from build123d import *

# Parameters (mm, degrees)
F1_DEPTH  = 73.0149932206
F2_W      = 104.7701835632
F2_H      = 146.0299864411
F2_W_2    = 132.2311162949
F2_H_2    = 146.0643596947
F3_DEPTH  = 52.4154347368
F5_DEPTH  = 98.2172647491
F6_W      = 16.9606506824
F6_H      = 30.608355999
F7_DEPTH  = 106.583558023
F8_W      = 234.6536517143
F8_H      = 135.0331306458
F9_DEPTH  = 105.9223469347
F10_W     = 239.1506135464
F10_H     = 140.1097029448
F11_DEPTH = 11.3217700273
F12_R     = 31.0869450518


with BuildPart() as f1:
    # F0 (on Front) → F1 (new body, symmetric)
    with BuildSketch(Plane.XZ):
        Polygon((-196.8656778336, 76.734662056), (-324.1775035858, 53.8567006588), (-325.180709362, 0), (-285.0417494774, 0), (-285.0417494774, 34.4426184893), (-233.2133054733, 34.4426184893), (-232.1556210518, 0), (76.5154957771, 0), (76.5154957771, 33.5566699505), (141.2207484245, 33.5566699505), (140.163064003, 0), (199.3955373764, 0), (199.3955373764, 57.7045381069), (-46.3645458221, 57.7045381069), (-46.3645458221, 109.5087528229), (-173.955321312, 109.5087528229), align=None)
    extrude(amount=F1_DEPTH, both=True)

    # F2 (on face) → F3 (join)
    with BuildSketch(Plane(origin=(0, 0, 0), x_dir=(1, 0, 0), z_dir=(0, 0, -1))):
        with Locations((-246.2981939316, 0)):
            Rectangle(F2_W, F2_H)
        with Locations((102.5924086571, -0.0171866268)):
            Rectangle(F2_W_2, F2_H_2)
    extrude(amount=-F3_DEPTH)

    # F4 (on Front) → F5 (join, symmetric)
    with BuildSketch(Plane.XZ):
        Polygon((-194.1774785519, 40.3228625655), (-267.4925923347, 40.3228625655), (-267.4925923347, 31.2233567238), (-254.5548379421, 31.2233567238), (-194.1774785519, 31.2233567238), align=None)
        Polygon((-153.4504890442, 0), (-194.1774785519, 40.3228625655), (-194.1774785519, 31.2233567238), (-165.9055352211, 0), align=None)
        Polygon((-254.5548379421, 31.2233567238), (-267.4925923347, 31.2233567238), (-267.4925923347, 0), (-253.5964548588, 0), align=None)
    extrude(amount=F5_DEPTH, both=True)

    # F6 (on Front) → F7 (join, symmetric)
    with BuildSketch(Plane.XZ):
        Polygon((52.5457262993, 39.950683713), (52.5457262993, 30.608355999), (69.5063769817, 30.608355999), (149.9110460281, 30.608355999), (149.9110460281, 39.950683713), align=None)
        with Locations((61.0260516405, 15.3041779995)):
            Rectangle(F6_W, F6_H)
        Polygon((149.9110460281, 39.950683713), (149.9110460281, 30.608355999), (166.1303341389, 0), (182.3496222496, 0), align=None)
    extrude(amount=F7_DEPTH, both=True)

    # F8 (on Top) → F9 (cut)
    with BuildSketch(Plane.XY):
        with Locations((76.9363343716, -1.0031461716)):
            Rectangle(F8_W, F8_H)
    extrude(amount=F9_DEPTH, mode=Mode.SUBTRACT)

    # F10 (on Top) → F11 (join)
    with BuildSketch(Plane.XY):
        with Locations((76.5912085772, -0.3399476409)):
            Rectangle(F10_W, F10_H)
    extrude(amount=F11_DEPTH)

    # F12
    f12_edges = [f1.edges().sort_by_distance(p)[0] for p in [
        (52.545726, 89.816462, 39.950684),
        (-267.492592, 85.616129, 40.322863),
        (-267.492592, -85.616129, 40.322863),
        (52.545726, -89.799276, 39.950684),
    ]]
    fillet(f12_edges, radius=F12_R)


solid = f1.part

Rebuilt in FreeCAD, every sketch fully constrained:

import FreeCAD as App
import Part
import Sketcher


def edges_at(feature, points):
    """Names of the edges that pass closest to the given points."""
    edges = feature.Shape.Edges
    near = lambda p: min(range(len(edges)), key=lambda i: edges[i].distToShape(Part.Vertex(*p))[0])
    return sorted({f"Edge{near(p) + 1}" for p in points})

doc = App.newDocument("Part")
params = doc.addObject("Spreadsheet::Sheet", "Params")
for row, (alias, value) in enumerate([
    ("pad1_length", "146.029986 mm"),
    ("pad2_length", "52.415435 mm"),
    ("pad3_length", "196.434529 mm"),
    ("pad4_length", "213.167116 mm"),
    ("pocket1_length", "105.922347 mm"),
    ("pad5_length", "11.32177 mm"),
    ("fillet_radius", "31.086945 mm"),
], start=1):
    params.set(f"A{row}", alias)
    params.set(f"B{row}", "=" + value)
    params.setAlias(f"B{row}", alias)

body = doc.addObject("PartDesign::Body", "Body")

# Sketch on XZ plane
sketch1 = body.newObject("Sketcher::SketchObject", "Sketch")
sketch1.AttachmentSupport = (doc.getObject("XZ_Plane"), [""])
sketch1.MapMode = "FlatFace"
sketch1.addGeometry([
    Part.LineSegment(App.Vector(-197, 77, 0), App.Vector(-324, 54, 0)),  # 0
    Part.LineSegment(App.Vector(-324, 54, 0), App.Vector(-325, 0, 0)),  # 1
    Part.LineSegment(App.Vector(-325, 0, 0), App.Vector(-285, 0, 0)),  # 2
    Part.LineSegment(App.Vector(-285, 0, 0), App.Vector(-285, 34, 0)),  # 3
    Part.LineSegment(App.Vector(-285, 34, 0), App.Vector(-233, 34, 0)),  # 4
    Part.LineSegment(App.Vector(-233, 34, 0), App.Vector(-232, 0, 0)),  # 5
    Part.LineSegment(App.Vector(-232, 0, 0), App.Vector(77, 0, 0)),  # 6
    Part.LineSegment(App.Vector(77, 0, 0), App.Vector(77, 34, 0)),  # 7
    Part.LineSegment(App.Vector(77, 34, 0), App.Vector(141, 34, 0)),  # 8
    Part.LineSegment(App.Vector(141, 34, 0), App.Vector(140, 0, 0)),  # 9
    Part.LineSegment(App.Vector(140, 0, 0), App.Vector(199, 0, 0)),  # 10
    Part.LineSegment(App.Vector(199, 0, 0), App.Vector(199, 58, 0)),  # 11
    Part.LineSegment(App.Vector(199, 58, 0), App.Vector(-46, 58, 0)),  # 12
    Part.LineSegment(App.Vector(-46, 58, 0), App.Vector(-46, 110, 0)),  # 13
    Part.LineSegment(App.Vector(-46, 110, 0), App.Vector(-174, 110, 0)),  # 14
    Part.LineSegment(App.Vector(-174, 110, 0), App.Vector(-197, 77, 0)),  # 15
], False)
sketch1.addConstraint([
    Sketcher.Constraint("Coincident", 0, 2, 1, 1),
    Sketcher.Constraint("Coincident", 1, 2, 2, 1),
    Sketcher.Constraint("Coincident", 2, 2, 3, 1),
    Sketcher.Constraint("Coincident", 3, 2, 4, 1),
    Sketcher.Constraint("Coincident", 4, 2, 5, 1),
    Sketcher.Constraint("Coincident", 5, 2, 6, 1),
    Sketcher.Constraint("Coincident", 6, 2, 7, 1),
    Sketcher.Constraint("Coincident", 7, 2, 8, 1),
    Sketcher.Constraint("Coincident", 8, 2, 9, 1),
    Sketcher.Constraint("Coincident", 9, 2, 10, 1),
    Sketcher.Constraint("Coincident", 10, 2, 11, 1),
    Sketcher.Constraint("Coincident", 11, 2, 12, 1),
    Sketcher.Constraint("Coincident", 12, 2, 13, 1),
    Sketcher.Constraint("Coincident", 13, 2, 14, 1),
    Sketcher.Constraint("Coincident", 14, 2, 15, 1),
    Sketcher.Constraint("Coincident", 15, 2, 0, 1),
    Sketcher.Constraint("Horizontal", 2),
    Sketcher.Constraint("Vertical", 3),
    Sketcher.Constraint("Horizontal", 4),
    Sketcher.Constraint("Horizontal", 6),
    Sketcher.Constraint("Vertical", 7),
    Sketcher.Constraint("Horizontal", 8),
    Sketcher.Constraint("Horizontal", 10),
    Sketcher.Constraint("Vertical", 11),
    Sketcher.Constraint("Horizontal", 12),
    Sketcher.Constraint("Vertical", 13),
    Sketcher.Constraint("Horizontal", 14),
    Sketcher.Constraint("PointOnObject", 1, 2, -1),
    Sketcher.Constraint("PointOnObject", 5, 2, -1),
    Sketcher.Constraint("PointOnObject", 9, 2, -1),
    Sketcher.Constraint("DistanceX", 2, 1, 2, 2, 40.13896),
    Sketcher.Constraint("DistanceY", 3, 1, 3, 2, 34.442618),
    Sketcher.Constraint("DistanceY", 7, 1, 7, 2, 33.55667),
    Sketcher.Constraint("DistanceY", 11, 1, 11, 2, 57.704538),
    Sketcher.Constraint("DistanceY", -1, 1, 0, 2, 53.856701),
    Sketcher.Constraint("DistanceX", 0, 2, 4, 2, 90.964198),
    Sketcher.Constraint("DistanceX", 4, 2, 6, 2, 309.728801),
    Sketcher.Constraint("DistanceX", 5, 2, 14, 2, 58.2003),
    Sketcher.Constraint("Distance", 0, 129.351081),
    Sketcher.Constraint("DistanceX", 4, 1, 4, 2, 51.828444),
    Sketcher.Constraint("DistanceX", 6, 1, 6, 2, 308.671117),
    Sketcher.Constraint("DistanceX", 8, 1, 8, 2, 64.705253),
    Sketcher.Constraint("DistanceX", 10, 1, 10, 2, 59.232473),
    Sketcher.Constraint("DistanceX", 12, 2, 12, 1, 245.760083),
    Sketcher.Constraint("DistanceX", 14, 2, 14, 1, 127.590775),
    Sketcher.Constraint("DistanceY", 13, 1, 13, 2, 51.804215),
    Sketcher.Constraint("DistanceX", 1, 2, -1, 1, 325.180709),
    Sketcher.Constraint("DistanceY", 15, 2, 14, 2, 32.774091),
])
pad1 = body.newObject("PartDesign::Pad", "Pad")
pad1.Profile = sketch1
pad1.setExpression("Length", "Params.pad1_length")
pad1.Midplane = True

# Sketch on XY plane
sketch2 = body.newObject("Sketcher::SketchObject", "Sketch001")
sketch2.AttachmentSupport = (doc.getObject("XY_Plane"), [""])
sketch2.MapMode = "FlatFace"
sketch2.addGeometry([
    Part.LineSegment(App.Vector(-299, -73, 0), App.Vector(-299, 73, 0)),  # 0
    Part.LineSegment(App.Vector(-299, 73, 0), App.Vector(-194, 73, 0)),  # 1
    Part.LineSegment(App.Vector(-194, 73, 0), App.Vector(-194, -73, 0)),  # 2
    Part.LineSegment(App.Vector(-194, -73, 0), App.Vector(-299, -73, 0)),  # 3
    Part.LineSegment(App.Vector(36, -73, 0), App.Vector(36, 73, 0)),  # 4
    Part.LineSegment(App.Vector(36, 73, 0), App.Vector(169, 73, 0)),  # 5
    Part.LineSegment(App.Vector(169, 73, 0), App.Vector(169, -73, 0)),  # 6
    Part.LineSegment(App.Vector(169, -73, 0), App.Vector(36, -73, 0)),  # 7
], False)
sketch2.addConstraint([
    Sketcher.Constraint("Coincident", 0, 2, 1, 1),
    Sketcher.Constraint("Coincident", 1, 2, 2, 1),
    Sketcher.Constraint("Coincident", 2, 2, 3, 1),
    Sketcher.Constraint("Coincident", 3, 2, 0, 1),
    Sketcher.Constraint("Coincident", 4, 2, 5, 1),
    Sketcher.Constraint("Coincident", 5, 2, 6, 1),
    Sketcher.Constraint("Coincident", 6, 2, 7, 1),
    Sketcher.Constraint("Coincident", 7, 2, 4, 1),
    Sketcher.Constraint("Vertical", 0),
    Sketcher.Constraint("Horizontal", 1),
    Sketcher.Constraint("Vertical", 2),
    Sketcher.Constraint("Horizontal", 3),
    Sketcher.Constraint("Vertical", 4),
    Sketcher.Constraint("Horizontal", 5),
    Sketcher.Constraint("Vertical", 6),
    Sketcher.Constraint("Horizontal", 7),
    Sketcher.Constraint("Horizontal", 3, 2, 6, 2),
    Sketcher.Constraint("DistanceY", 4, 1, 4, 2, 146.06436),
    Sketcher.Constraint("DistanceX", 1, 1, 1, 2, 104.770184),
    Sketcher.Constraint("DistanceX", 5, 1, 5, 2, 132.231116),
    Sketcher.Constraint("DistanceY", 0, 1, 0, 2, 146.029986),
    Sketcher.Constraint("DistanceX", -1, 1, 4, 2, 36.476851),
    Sketcher.Constraint("DistanceX", 1, 2, 5, 2, 362.621069),
    Sketcher.Constraint("DistanceY", -1, 1, 0, 2, 73.014993),
])
pad2 = body.newObject("PartDesign::Pad", "Pad001")
pad2.Profile = sketch2
pad2.setExpression("Length", "Params.pad2_length")

# Sketch on XZ plane
sketch3 = body.newObject("Sketcher::SketchObject", "Sketch002")
sketch3.AttachmentSupport = (doc.getObject("XZ_Plane"), [""])
sketch3.MapMode = "FlatFace"
sketch3.addGeometry([
    Part.LineSegment(App.Vector(-194, 40, 0), App.Vector(-267, 40, 0)),  # 0
    Part.LineSegment(App.Vector(-267, 40, 0), App.Vector(-267, 0, 0)),  # 1
    Part.LineSegment(App.Vector(-267, 0, 0), App.Vector(-254, 0, 0)),  # 2
    Part.LineSegment(App.Vector(-254, 0, 0), App.Vector(-255, 31, 0)),  # 3
    Part.LineSegment(App.Vector(-255, 31, 0), App.Vector(-194, 31, 0)),  # 4
    Part.LineSegment(App.Vector(-194, 31, 0), App.Vector(-166, 0, 0)),  # 5
    Part.LineSegment(App.Vector(-166, 0, 0), App.Vector(-153, 0, 0)),  # 6
    Part.LineSegment(App.Vector(-153, 0, 0), App.Vector(-194, 40, 0)),  # 7
], False)
sketch3.addConstraint([
    Sketcher.Constraint("Coincident", 0, 2, 1, 1),
    Sketcher.Constraint("Coincident", 1, 2, 2, 1),
    Sketcher.Constraint("Coincident", 2, 2, 3, 1),
    Sketcher.Constraint("Coincident", 3, 2, 4, 1),
    Sketcher.Constraint("Coincident", 4, 2, 5, 1),
    Sketcher.Constraint("Coincident", 5, 2, 6, 1),
    Sketcher.Constraint("Coincident", 6, 2, 7, 1),
    Sketcher.Constraint("Coincident", 7, 2, 0, 1),
    Sketcher.Constraint("Horizontal", 0),
    Sketcher.Constraint("Vertical", 1),
    Sketcher.Constraint("Horizontal", 2),
    Sketcher.Constraint("Horizontal", 4),
    Sketcher.Constraint("Horizontal", 6),
    Sketcher.Constraint("PointOnObject", 1, 2, -1),
    Sketcher.Constraint("PointOnObject", 5, 2, -1),
    Sketcher.Constraint("Vertical", 4, 2, 7, 2),
    Sketcher.Constraint("DistanceX", 4, 1, 4, 2, 60.377359),
    Sketcher.Constraint("Distance", 3, 31.238062),
    Sketcher.Constraint("DistanceX", 0, 2, 0, 1, 73.315114),
    Sketcher.Constraint("DistanceX", 2, 1, 2, 2, 13.896137),
    Sketcher.Constraint("DistanceX", 6, 1, 6, 2, 12.455046),
    Sketcher.Constraint("DistanceY", 1, 2, 1, 1, 40.322863),
    Sketcher.Constraint("DistanceX", 4, 2, -1, 1, 194.177479),
    Sketcher.Constraint("DistanceX", 6, 2, -1, 1, 153.450489),
])
pad3 = body.newObject("PartDesign::Pad", "Pad002")
pad3.Profile = sketch3
pad3.setExpression("Length", "Params.pad3_length")
pad3.Midplane = True

# Sketch on XZ plane
sketch4 = body.newObject("Sketcher::SketchObject", "Sketch003")
sketch4.AttachmentSupport = (doc.getObject("XZ_Plane"), [""])
sketch4.MapMode = "FlatFace"
sketch4.addGeometry([
    Part.LineSegment(App.Vector(53, 40, 0), App.Vector(53, 0, 0)),  # 0
    Part.LineSegment(App.Vector(53, 0, 0), App.Vector(70, 0, 0)),  # 1
    Part.LineSegment(App.Vector(70, 0, 0), App.Vector(70, 31, 0)),  # 2
    Part.LineSegment(App.Vector(70, 31, 0), App.Vector(150, 31, 0)),  # 3
    Part.LineSegment(App.Vector(150, 31, 0), App.Vector(166, 0, 0)),  # 4
    Part.LineSegment(App.Vector(166, 0, 0), App.Vector(182, 0, 0)),  # 5
    Part.LineSegment(App.Vector(182, 0, 0), App.Vector(150, 40, 0)),  # 6
    Part.LineSegment(App.Vector(150, 40, 0), App.Vector(53, 40, 0)),  # 7
], False)
sketch4.addConstraint([
    Sketcher.Constraint("Coincident", 0, 2, 1, 1),
    Sketcher.Constraint("Coincident", 1, 2, 2, 1),
    Sketcher.Constraint("Coincident", 2, 2, 3, 1),
    Sketcher.Constraint("Coincident", 3, 2, 4, 1),
    Sketcher.Constraint("Coincident", 4, 2, 5, 1),
    Sketcher.Constraint("Coincident", 5, 2, 6, 1),
    Sketcher.Constraint("Coincident", 6, 2, 7, 1),
    Sketcher.Constraint("Coincident", 7, 2, 0, 1),
    Sketcher.Constraint("Vertical", 0),
    Sketcher.Constraint("Horizontal", 1),
    Sketcher.Constraint("Vertical", 2),
    Sketcher.Constraint("Horizontal", 3),
    Sketcher.Constraint("Horizontal", 5),
    Sketcher.Constraint("Horizontal", 7),
    Sketcher.Constraint("PointOnObject", 0, 2, -1),
    Sketcher.Constraint("PointOnObject", 4, 2, -1),
    Sketcher.Constraint("Vertical", 3, 2, 6, 2),
    Sketcher.Constraint("DistanceX", 1, 1, 1, 2, 16.960651),
    Sketcher.Constraint("DistanceX", 3, 1, 3, 2, 80.404669),
    Sketcher.Constraint("DistanceX", 5, 1, 5, 2, 16.219288),
    Sketcher.Constraint("DistanceY", 0, 2, 0, 1, 39.950684),
    Sketcher.Constraint("DistanceY", 2, 1, 2, 2, 30.608356),
    Sketcher.Constraint("DistanceX", 3, 2, 4, 2, 16.219288),
    Sketcher.Constraint("DistanceX", -1, 1, 0, 2, 52.545726),
])
pad4 = body.newObject("PartDesign::Pad", "Pad003")
pad4.Profile = sketch4
pad4.setExpression("Length", "Params.pad4_length")
pad4.Midplane = True

# Sketch on XY plane
sketch5 = body.newObject("Sketcher::SketchObject", "Sketch004")
sketch5.AttachmentSupport = (doc.getObject("XY_Plane"), [""])
sketch5.MapMode = "FlatFace"
sketch5.addGeometry([
    Part.LineSegment(App.Vector(-40, 67, 0), App.Vector(-40, -69, 0)),
    Part.LineSegment(App.Vector(-40, -69, 0), App.Vector(194, -69, 0)),
    Part.LineSegment(App.Vector(194, -69, 0), App.Vector(194, 67, 0)),
    Part.LineSegment(App.Vector(194, 67, 0), App.Vector(-40, 67, 0)),
], False)
sketch5.addConstraint([
    Sketcher.Constraint("Coincident", 0, 2, 1, 1),
    Sketcher.Constraint("Coincident", 1, 2, 2, 1),
    Sketcher.Constraint("Coincident", 2, 2, 3, 1),
    Sketcher.Constraint("Coincident", 3, 2, 0, 1),
    Sketcher.Constraint("Vertical", 0),
    Sketcher.Constraint("Horizontal", 1),
    Sketcher.Constraint("Vertical", 2),
    Sketcher.Constraint("Horizontal", 3),
    Sketcher.Constraint("DistanceX", 1, 1, 1, 2, 234.653652),
    Sketcher.Constraint("DistanceY", 0, 2, 0, 1, 135.033131),
    Sketcher.Constraint("DistanceX", 0, 2, -1, 1, 40.390491),
    Sketcher.Constraint("DistanceY", 0, 2, -1, 1, 68.519711),
])
pocket1 = body.newObject("PartDesign::Pocket", "Pocket")
pocket1.Profile = sketch5
pocket1.setExpression("Length", "Params.pocket1_length")
pocket1.Reversed = True

# Sketch on XY plane
sketch6 = body.newObject("Sketcher::SketchObject", "Sketch005")
sketch6.AttachmentSupport = (doc.getObject("XY_Plane"), [""])
sketch6.MapMode = "FlatFace"
sketch6.addGeometry([
    Part.LineSegment(App.Vector(-43, 70, 0), App.Vector(-43, -70, 0)),
    Part.LineSegment(App.Vector(-43, -70, 0), App.Vector(196, -70, 0)),
    Part.LineSegment(App.Vector(196, -70, 0), App.Vector(196, 70, 0)),
    Part.LineSegment(App.Vector(196, 70, 0), App.Vector(-43, 70, 0)),
], False)
sketch6.addConstraint([
    Sketcher.Constraint("Coincident", 0, 2, 1, 1),
    Sketcher.Constraint("Coincident", 1, 2, 2, 1),
    Sketcher.Constraint("Coincident", 2, 2, 3, 1),
    Sketcher.Constraint("Coincident", 3, 2, 0, 1),
    Sketcher.Constraint("Vertical", 0),
    Sketcher.Constraint("Horizontal", 1),
    Sketcher.Constraint("Vertical", 2),
    Sketcher.Constraint("Horizontal", 3),
    Sketcher.Constraint("DistanceX", 0, 2, -1, 1, 42.984098),
    Sketcher.Constraint("DistanceY", 0, 2, -1, 1, 70.394799),
    Sketcher.Constraint("DistanceX", 1, 1, 1, 2, 239.150614),
    Sketcher.Constraint("DistanceY", 0, 2, 0, 1, 140.109703),
])
pad5 = body.newObject("PartDesign::Pad", "Pad004")
pad5.Profile = sketch6
pad5.setExpression("Length", "Params.pad5_length")
doc.recompute()

fillet = body.newObject("PartDesign::Fillet", "Fillet")
fillet.Base = (pad5, edges_at(pad5, [
    (52.546, 89.816, 39.951),
    (-267.493, 85.616, 40.323),
    (-267.493, -85.616, 40.323),
    (52.546, -89.799, 39.951),
]))
fillet.setExpression("Radius", "Params.fillet_radius")

doc.recompute()
